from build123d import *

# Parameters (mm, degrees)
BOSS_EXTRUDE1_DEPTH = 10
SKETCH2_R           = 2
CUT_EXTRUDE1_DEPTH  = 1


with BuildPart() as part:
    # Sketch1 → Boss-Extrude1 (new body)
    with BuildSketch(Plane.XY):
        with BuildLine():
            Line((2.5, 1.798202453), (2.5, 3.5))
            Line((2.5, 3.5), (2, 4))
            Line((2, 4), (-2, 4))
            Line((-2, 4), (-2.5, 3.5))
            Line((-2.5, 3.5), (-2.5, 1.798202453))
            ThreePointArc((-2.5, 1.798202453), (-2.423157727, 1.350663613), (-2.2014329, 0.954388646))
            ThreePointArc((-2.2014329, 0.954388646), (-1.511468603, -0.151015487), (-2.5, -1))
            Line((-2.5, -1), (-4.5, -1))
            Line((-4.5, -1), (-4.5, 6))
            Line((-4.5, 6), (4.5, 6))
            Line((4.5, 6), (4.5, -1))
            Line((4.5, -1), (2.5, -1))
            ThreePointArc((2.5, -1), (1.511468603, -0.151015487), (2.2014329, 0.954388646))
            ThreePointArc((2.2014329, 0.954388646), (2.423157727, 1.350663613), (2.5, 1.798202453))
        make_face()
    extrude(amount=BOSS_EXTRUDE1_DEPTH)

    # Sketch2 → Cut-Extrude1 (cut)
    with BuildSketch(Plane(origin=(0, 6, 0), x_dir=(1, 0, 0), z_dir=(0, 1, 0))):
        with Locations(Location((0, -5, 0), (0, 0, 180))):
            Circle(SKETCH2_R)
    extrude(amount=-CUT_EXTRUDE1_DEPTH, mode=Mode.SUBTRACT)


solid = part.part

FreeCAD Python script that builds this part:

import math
import FreeCAD as App
import Part
import Sketcher
from FreeCAD import Vector

doc = App.newDocument("Part")
body = doc.addObject("PartDesign::Body", "Body")

sketch1 = body.newObject("Sketcher::SketchObject", "Sketch")
sketch1.AttachmentSupport = (doc.getObject("XY_Plane"), [""])
sketch1.MapMode = "FlatFace"
sketch1.addGeometry(Part.LineSegment(Vector(2.5, 3.5, 0), Vector(2.5, 1.8, 0)), False)
sketch1.addGeometry(Part.ArcOfCircle(Part.Circle(Vector(1.2, 1.8, 0), Vector(0, 0, 1), 1.3), math.radians(-39), math.radians(0)), False)
sketch1.addGeometry(Part.ArcOfCircle(Part.Circle(Vector(2.5, 0, 0), Vector(0, 0, 1), 1), math.radians(107), math.radians(270)), False)
sketch1.addGeometry(Part.LineSegment(Vector(2.5, -1, 0), Vector(4.5, -1, 0)), False)
sketch1.addGeometry(Part.LineSegment(Vector(4.5, -1, 0), Vector(4.5, 6, 0)), False)
sketch1.addGeometry(Part.LineSegment(Vector(4.5, 6, 0), Vector(-4.5, 6, 0)), False)
sketch1.addGeometry(Part.LineSegment(Vector(-4.5, 6, 0), Vector(-4.5, -1, 0)), False)
sketch1.addGeometry(Part.LineSegment(Vector(-4.5, -1, 0), Vector(-2.5, -1, 0)), False)
sketch1.addGeometry(Part.ArcOfCircle(Part.Circle(Vector(-2.5, 0, 0), Vector(0, 0, 1), 1), math.radians(-90), math.radians(73)), False)
sketch1.addGeometry(Part.ArcOfCircle(Part.Circle(Vector(-1.2, 1.8, 0), Vector(0, 0, 1), 1.3), math.radians(-180), math.radians(-141)), False)
sketch1.addGeometry(Part.LineSegment(Vector(-2.5, 1.8, 0), Vector(-2.5, 3.5, 0)), False)
sketch1.addGeometry(Part.LineSegment(Vector(-2.5, 3.5, 0), Vector(-2, 4, 0)), False)
sketch1.addGeometry(Part.LineSegment(Vector(-2, 4, 0), Vector(2, 4, 0)), False)
sketch1.addGeometry(Part.LineSegment(Vector(2, 4, 0), Vector(2.5, 3.5, 0)), False)
sketch1.addConstraint(Sketcher.Constraint("Tangent", 0, 2, 1, 2))
sketch1.addConstraint(Sketcher.Constraint("Coincident", 1, 1, 2, 1))
sketch1.addConstraint(Sketcher.Constraint("Tangent", 2, 2, 3, 1))
sketch1.addConstraint(Sketcher.Constraint("Coincident", 3, 2, 4, 1))
sketch1.addConstraint(Sketcher.Constraint("Coincident", 4, 2, 5, 1))
sketch1.addConstraint(Sketcher.Constraint("Coincident", 5, 2, 6, 1))
sketch1.addConstraint(Sketcher.Constraint("Coincident", 6, 2, 7, 1))
sketch1.addConstraint(Sketcher.Constraint("Tangent", 7, 2, 8, 1))
sketch1.addConstraint(Sketcher.Constraint("Coincident", 8, 2, 9, 2))
sketch1.addConstraint(Sketcher.Constraint("Tangent", 9, 1, 10, 1))
sketch1.addConstraint(Sketcher.Constraint("Coincident", 10, 2, 11, 1))
sketch1.addConstraint(Sketcher.Constraint("Coincident", 11, 2, 12, 1))
sketch1.addConstraint(Sketcher.Constraint("Coincident", 12, 2, 13, 1))
sketch1.addConstraint(Sketcher.Constraint("Coincident", 13, 2, 0, 1))
sketch1.addConstraint(Sketcher.Constraint("Vertical", 0))
sketch1.addConstraint(Sketcher.Constraint("Horizontal", 3))
sketch1.addConstraint(Sketcher.Constraint("Vertical", 4))
sketch1.addConstraint(Sketcher.Constraint("Horizontal", 5))
sketch1.addConstraint(Sketcher.Constraint("Vertical", 6))
sketch1.addConstraint(Sketcher.Constraint("Horizontal", 7))
sketch1.addConstraint(Sketcher.Constraint("Vertical", 10))
sketch1.addConstraint(Sketcher.Constraint("Horizontal", 12))
sketch1.addConstraint(Sketcher.Constraint("Equal", 2, 8))
sketch1.addConstraint(Sketcher.Constraint("Equal", 1, 9))
sketch1.addConstraint(Sketcher.Constraint("Symmetric", 2, 3, 8, 3, -1, 1))
sketch1.addConstraint(Sketcher.Constraint("Symmetric", 1, 3, 9, 3, -2))
sketch1.addConstraint(Sketcher.Constraint("Symmetric", 3, 2, 6, 2, -2))
sketch1.addConstraint(Sketcher.Constraint("Perpendicular", 11, 13))
sketch1.addConstraint(Sketcher.Constraint("Horizontal", 10, 2, 13, 2))
sketch1.addConstraint(Sketcher.Constraint("Vertical", 2, 3, 0, 2))
sketch1.addConstraint(Sketcher.Constraint("Equal", 11, 13))
sketch1.addConstraint(Sketcher.Constraint("Radius", 2, 1.0))
sketch1.addConstraint(Sketcher.Constraint("DistanceX", 3, 1, 3, 2, 2.0))
sketch1.addConstraint(Sketcher.Constraint("DistanceX", 5, 2, 5, 1, 9.0))
sketch1.addConstraint(Sketcher.Constraint("DistanceX", 12, 1, 12, 2, 4.0))
sketch1.addConstraint(Sketcher.Constraint("DistanceY", 4, 1, 4, 2, 7.0))
sketch1.addConstraint(Sketcher.Constraint("DistanceY", -1, 1, 11, 2, 4.0))
sketch1.addConstraint(Sketcher.Constraint("Radius", 1, 1.341682))
sketch1.addConstraint(Sketcher.Constraint("DistanceY", 0, 2, 0, 1, 1.701798))
pad1 = body.newObject("PartDesign::Pad", "Pad")
pad1.Profile = sketch1
pad1.Length = 10

sketch2 = body.newObject("Sketcher::SketchObject", "Sketch001")
sketch2.AttachmentSupport = (doc.getObject("XZ_Plane"), [""])
sketch2.MapMode = "FlatFace"
sketch2.AttachmentOffset = App.Placement(Vector(0, 0, -6), App.Rotation())
sketch2.addGeometry(Part.Circle(Vector(0, 5, 0), Vector(0, 0, 1), 2), False)
sketch2.addConstraint(Sketcher.Constraint("PointOnObject", 0, 3, -2))
sketch2.addConstraint(Sketcher.Constraint("Diameter", 0, 4.0))
sketch2.addConstraint(Sketcher.Constraint("DistanceY", -1, 1, 0, 3, 5.0))
pocket1 = body.newObject("PartDesign::Pocket", "Pocket")
pocket1.Profile = sketch2
pocket1.Length = 1
pocket1.Reversed = True

doc.recompute()
